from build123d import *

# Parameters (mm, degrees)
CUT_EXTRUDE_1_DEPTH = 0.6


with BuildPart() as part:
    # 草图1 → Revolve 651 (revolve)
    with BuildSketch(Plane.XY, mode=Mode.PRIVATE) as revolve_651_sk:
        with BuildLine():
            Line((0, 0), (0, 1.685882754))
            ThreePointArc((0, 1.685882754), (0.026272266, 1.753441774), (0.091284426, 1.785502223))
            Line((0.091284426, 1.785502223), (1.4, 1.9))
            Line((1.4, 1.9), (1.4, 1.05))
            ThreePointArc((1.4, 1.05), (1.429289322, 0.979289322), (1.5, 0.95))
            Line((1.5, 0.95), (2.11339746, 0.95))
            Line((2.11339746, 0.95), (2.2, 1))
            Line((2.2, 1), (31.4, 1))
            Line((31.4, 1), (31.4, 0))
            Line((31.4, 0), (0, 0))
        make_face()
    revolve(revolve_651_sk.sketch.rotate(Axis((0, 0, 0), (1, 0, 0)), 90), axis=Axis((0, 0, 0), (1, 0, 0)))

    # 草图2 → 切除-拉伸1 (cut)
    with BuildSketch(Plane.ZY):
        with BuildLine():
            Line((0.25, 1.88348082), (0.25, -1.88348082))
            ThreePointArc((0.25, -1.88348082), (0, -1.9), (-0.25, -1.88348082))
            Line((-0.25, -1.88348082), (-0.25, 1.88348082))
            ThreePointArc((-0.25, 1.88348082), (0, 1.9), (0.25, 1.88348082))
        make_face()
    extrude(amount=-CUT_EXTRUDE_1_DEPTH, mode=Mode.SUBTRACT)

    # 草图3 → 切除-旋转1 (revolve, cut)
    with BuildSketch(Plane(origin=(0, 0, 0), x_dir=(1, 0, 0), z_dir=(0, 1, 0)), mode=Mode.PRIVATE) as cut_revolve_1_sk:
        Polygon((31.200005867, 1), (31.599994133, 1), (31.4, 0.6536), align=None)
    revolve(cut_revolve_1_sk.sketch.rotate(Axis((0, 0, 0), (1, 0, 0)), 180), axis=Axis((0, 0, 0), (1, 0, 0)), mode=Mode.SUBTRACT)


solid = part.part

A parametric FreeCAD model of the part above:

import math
import FreeCAD as App
import Part
import Sketcher
from FreeCAD import Vector
Q = App.Units.Quantity


def add_polygon(sketch, points):
    """Adds a closed chain of lines whose ends are joined by coincident constraints."""
    first, n = sketch.GeometryCount, len(points)
    for a, b in zip(points, points[1:] + points[:1]):
        sketch.addGeometry(Part.LineSegment(App.Vector(*a, 0), App.Vector(*b, 0)), False)
    for i in range(n):
        sketch.addConstraint(Sketcher.Constraint("Coincident", first + i, 2, first + (i + 1) % n, 1))

doc = App.newDocument("Part")
body = doc.addObject("PartDesign::Body", "Body")

# Sketch on XY plane
sketch1 = body.newObject("Sketcher::SketchObject", "Sketch")
sketch1.AttachmentSupport = (doc.getObject("XY_Plane"), [""])
sketch1.MapMode = "FlatFace"
sketch1.addGeometry(Part.LineSegment(Vector(0, 1.685883, 0), Vector(0, 0, 0)), False)
sketch1.addGeometry(Part.LineSegment(Vector(0, 0, 0), Vector(31.4, 0, 0)), False)
sketch1.addGeometry(Part.LineSegment(Vector(31.4, 0, 0), Vector(31.4, 1, 0)), False)
sketch1.addGeometry(Part.LineSegment(Vector(31.4, 1, 0), Vector(2.2, 1, 0)), False)
sketch1.addGeometry(Part.LineSegment(Vector(2.2, 1, 0), Vector(2.113397, 0.95, 0)), False)
sketch1.addGeometry(Part.LineSegment(Vector(2.113397, 0.95, 0), Vector(1.5, 0.95, 0)), False)
sketch1.addGeometry(Part.ArcOfCircle(Part.Circle(Vector(1.5, 1.05, 0), Vector(0, 0, 1), 0.1), math.radians(180), math.radians(270)), False)
sketch1.addGeometry(Part.LineSegment(Vector(1.4, 1.05, 0), Vector(1.4, 1.9, 0)), False)
sketch1.addGeometry(Part.LineSegment(Vector(1.4, 1.9, 0), Vector(0.091284, 1.785502, 0)), False)
sketch1.addGeometry(Part.ArcOfCircle(Part.Circle(Vector(0.1, 1.685883, 0), Vector(0, 0, 1), 0.1), math.radians(94.999999), math.radians(180)), False)
sketch1.addConstraint(Sketcher.Constraint("Coincident", 0, 2, 1, 1))
sketch1.addConstraint(Sketcher.Constraint("Coincident", 1, 2, 2, 1))
sketch1.addConstraint(Sketcher.Constraint("Coincident", 2, 2, 3, 1))
sketch1.addConstraint(Sketcher.Constraint("Coincident", 3, 2, 4, 1))
sketch1.addConstraint(Sketcher.Constraint("Coincident", 4, 2, 5, 1))
sketch1.addConstraint(Sketcher.Constraint("Tangent", 5, 2, 6, 2))
sketch1.addConstraint(Sketcher.Constraint("Tangent", 6, 1, 7, 1))
sketch1.addConstraint(Sketcher.Constraint("Coincident", 7, 2, 8, 1))
sketch1.addConstraint(Sketcher.Constraint("Tangent", 8, 2, 9, 1))
sketch1.addConstraint(Sketcher.Constraint("Tangent", 9, 2, 0, 1))
sketch1.addConstraint(Sketcher.Constraint("Vertical", 0))
sketch1.addConstraint(Sketcher.Constraint("Horizontal", 1))
sketch1.addConstraint(Sketcher.Constraint("Vertical", 2))
sketch1.addConstraint(Sketcher.Constraint("Horizontal", 3))
sketch1.addConstraint(Sketcher.Constraint("Horizontal", 5))
sketch1.addConstraint(Sketcher.Constraint("Vertical", 7))
sketch1.addConstraint(Sketcher.Constraint("Coincident", 0, 2, -1, 1))
sketch1.addConstraint(Sketcher.Constraint("Equal", 6, 9))
sketch1.addConstraint(Sketcher.Constraint("Radius", 6, 0.1))
sketch1.addConstraint(Sketcher.Constraint("DistanceY", 2, 1, 2, 2, 1.0))
sketch1.addConstraint(Sketcher.Constraint("Angle", 4, Q("-150 deg")))
sketch1.addConstraint(Sketcher.Constraint("Angle", 8, Q("-175 deg")))
sketch1.addConstraint(Sketcher.Constraint("DistanceX", 1, 1, 1, 2, 31.4))
sketch1.addConstraint(Sketcher.Constraint("DistanceX", 3, 2, 3, 1, 29.2))
sketch1.addConstraint(Sketcher.Constraint("Distance", 4, 0.1))
sketch1.addConstraint(Sketcher.Constraint("DistanceY", 7, 1, 7, 2, 0.85))
sketch1.addConstraint(Sketcher.Constraint("DistanceX", -1, 1, 6, 3, 1.5))
revolution = body.newObject("PartDesign::Revolution", "Revolution")
revolution.Profile = sketch1
revolution.ReferenceAxis = (sketch1, ["H_Axis"])
revolution.Angle = 360

# Sketch on YZ plane
sketch2 = body.newObject("Sketcher::SketchObject", "Sketch001")
sketch2.AttachmentSupport = (doc.getObject("YZ_Plane"), [""])
sketch2.MapMode = "FlatFace"
sketch2.addGeometry(Part.LineSegment(Vector(-1.883481, 0.25, 0), Vector(1.883481, 0.25, 0)), False)
sketch2.addGeometry(Part.ArcOfCircle(Part.Circle(Vector(0, 0, 0), Vector(0, 0, 1), 1.9), math.radians(-7.560843), math.radians(7.560843)), False)
sketch2.addGeometry(Part.LineSegment(Vector(1.883481, -0.25, 0), Vector(-1.883481, -0.25, 0)), False)
sketch2.addGeometry(Part.ArcOfCircle(Part.Circle(Vector(0, 0, 0), Vector(0, 0, 1), 1.9), math.radians(172.439157), math.radians(187.560843)), False)
sketch2.addConstraint(Sketcher.Constraint("Coincident", 0, 2, 1, 2))
sketch2.addConstraint(Sketcher.Constraint("Coincident", 1, 1, 2, 1))
sketch2.addConstraint(Sketcher.Constraint("Coincident", 2, 2, 3, 2))
sketch2.addConstraint(Sketcher.Constraint("Coincident", 3, 1, 0, 1))
sketch2.addConstraint(Sketcher.Constraint("Horizontal", 0))
sketch2.addConstraint(Sketcher.Constraint("Horizontal", 2))
sketch2.addConstraint(Sketcher.Constraint("Coincident", 1, 3, -1, 1))
sketch2.addConstraint(Sketcher.Constraint("Coincident", 3, 3, -1, 1))
sketch2.addConstraint(Sketcher.Constraint("Equal", 1, 3))
sketch2.addConstraint(Sketcher.Constraint("Vertical", 0, 2, 1, 1))
sketch2.addConstraint(Sketcher.Constraint("Radius", 1, 1.9))
sketch2.addConstraint(Sketcher.Constraint("DistanceY", 1, 1, 0, 2, 0.5))
pocket1 = body.newObject("PartDesign::Pocket", "Pocket")
pocket1.Profile = sketch2
pocket1.Length = 0.6
pocket1.Reversed = True

# Sketch on XZ plane
sketch3 = body.newObject("Sketcher::SketchObject", "Sketch002")
sketch3.AttachmentSupport = (doc.getObject("XZ_Plane"), [""])
sketch3.MapMode = "FlatFace"
add_polygon(sketch3, [(31.599994, -1), (31.200006, -1), (31.4, -0.6536)])  # lines 0-2
sketch3.addConstraint(Sketcher.Constraint("Horizontal", 0))
sketch3.addConstraint(Sketcher.Constraint("Equal", 1, 2))
sketch3.addConstraint(Sketcher.Constraint("Angle", 1, Q("60 deg")))
sketch3.addConstraint(Sketcher.Constraint("DistanceY", 0, 2, -1, 1, 1.0))
sketch3.addConstraint(Sketcher.Constraint("DistanceX", -1, 1, 1, 2, 31.4))
sketch3.addConstraint(Sketcher.Constraint("DistanceX", 0, 2, 0, 1, 0.399988))
groove = body.newObject("PartDesign::Groove", "Groove")
groove.Profile = sketch3
groove.ReferenceAxis = (sketch3, ["H_Axis"])
groove.Angle = 360

doc.recompute()
